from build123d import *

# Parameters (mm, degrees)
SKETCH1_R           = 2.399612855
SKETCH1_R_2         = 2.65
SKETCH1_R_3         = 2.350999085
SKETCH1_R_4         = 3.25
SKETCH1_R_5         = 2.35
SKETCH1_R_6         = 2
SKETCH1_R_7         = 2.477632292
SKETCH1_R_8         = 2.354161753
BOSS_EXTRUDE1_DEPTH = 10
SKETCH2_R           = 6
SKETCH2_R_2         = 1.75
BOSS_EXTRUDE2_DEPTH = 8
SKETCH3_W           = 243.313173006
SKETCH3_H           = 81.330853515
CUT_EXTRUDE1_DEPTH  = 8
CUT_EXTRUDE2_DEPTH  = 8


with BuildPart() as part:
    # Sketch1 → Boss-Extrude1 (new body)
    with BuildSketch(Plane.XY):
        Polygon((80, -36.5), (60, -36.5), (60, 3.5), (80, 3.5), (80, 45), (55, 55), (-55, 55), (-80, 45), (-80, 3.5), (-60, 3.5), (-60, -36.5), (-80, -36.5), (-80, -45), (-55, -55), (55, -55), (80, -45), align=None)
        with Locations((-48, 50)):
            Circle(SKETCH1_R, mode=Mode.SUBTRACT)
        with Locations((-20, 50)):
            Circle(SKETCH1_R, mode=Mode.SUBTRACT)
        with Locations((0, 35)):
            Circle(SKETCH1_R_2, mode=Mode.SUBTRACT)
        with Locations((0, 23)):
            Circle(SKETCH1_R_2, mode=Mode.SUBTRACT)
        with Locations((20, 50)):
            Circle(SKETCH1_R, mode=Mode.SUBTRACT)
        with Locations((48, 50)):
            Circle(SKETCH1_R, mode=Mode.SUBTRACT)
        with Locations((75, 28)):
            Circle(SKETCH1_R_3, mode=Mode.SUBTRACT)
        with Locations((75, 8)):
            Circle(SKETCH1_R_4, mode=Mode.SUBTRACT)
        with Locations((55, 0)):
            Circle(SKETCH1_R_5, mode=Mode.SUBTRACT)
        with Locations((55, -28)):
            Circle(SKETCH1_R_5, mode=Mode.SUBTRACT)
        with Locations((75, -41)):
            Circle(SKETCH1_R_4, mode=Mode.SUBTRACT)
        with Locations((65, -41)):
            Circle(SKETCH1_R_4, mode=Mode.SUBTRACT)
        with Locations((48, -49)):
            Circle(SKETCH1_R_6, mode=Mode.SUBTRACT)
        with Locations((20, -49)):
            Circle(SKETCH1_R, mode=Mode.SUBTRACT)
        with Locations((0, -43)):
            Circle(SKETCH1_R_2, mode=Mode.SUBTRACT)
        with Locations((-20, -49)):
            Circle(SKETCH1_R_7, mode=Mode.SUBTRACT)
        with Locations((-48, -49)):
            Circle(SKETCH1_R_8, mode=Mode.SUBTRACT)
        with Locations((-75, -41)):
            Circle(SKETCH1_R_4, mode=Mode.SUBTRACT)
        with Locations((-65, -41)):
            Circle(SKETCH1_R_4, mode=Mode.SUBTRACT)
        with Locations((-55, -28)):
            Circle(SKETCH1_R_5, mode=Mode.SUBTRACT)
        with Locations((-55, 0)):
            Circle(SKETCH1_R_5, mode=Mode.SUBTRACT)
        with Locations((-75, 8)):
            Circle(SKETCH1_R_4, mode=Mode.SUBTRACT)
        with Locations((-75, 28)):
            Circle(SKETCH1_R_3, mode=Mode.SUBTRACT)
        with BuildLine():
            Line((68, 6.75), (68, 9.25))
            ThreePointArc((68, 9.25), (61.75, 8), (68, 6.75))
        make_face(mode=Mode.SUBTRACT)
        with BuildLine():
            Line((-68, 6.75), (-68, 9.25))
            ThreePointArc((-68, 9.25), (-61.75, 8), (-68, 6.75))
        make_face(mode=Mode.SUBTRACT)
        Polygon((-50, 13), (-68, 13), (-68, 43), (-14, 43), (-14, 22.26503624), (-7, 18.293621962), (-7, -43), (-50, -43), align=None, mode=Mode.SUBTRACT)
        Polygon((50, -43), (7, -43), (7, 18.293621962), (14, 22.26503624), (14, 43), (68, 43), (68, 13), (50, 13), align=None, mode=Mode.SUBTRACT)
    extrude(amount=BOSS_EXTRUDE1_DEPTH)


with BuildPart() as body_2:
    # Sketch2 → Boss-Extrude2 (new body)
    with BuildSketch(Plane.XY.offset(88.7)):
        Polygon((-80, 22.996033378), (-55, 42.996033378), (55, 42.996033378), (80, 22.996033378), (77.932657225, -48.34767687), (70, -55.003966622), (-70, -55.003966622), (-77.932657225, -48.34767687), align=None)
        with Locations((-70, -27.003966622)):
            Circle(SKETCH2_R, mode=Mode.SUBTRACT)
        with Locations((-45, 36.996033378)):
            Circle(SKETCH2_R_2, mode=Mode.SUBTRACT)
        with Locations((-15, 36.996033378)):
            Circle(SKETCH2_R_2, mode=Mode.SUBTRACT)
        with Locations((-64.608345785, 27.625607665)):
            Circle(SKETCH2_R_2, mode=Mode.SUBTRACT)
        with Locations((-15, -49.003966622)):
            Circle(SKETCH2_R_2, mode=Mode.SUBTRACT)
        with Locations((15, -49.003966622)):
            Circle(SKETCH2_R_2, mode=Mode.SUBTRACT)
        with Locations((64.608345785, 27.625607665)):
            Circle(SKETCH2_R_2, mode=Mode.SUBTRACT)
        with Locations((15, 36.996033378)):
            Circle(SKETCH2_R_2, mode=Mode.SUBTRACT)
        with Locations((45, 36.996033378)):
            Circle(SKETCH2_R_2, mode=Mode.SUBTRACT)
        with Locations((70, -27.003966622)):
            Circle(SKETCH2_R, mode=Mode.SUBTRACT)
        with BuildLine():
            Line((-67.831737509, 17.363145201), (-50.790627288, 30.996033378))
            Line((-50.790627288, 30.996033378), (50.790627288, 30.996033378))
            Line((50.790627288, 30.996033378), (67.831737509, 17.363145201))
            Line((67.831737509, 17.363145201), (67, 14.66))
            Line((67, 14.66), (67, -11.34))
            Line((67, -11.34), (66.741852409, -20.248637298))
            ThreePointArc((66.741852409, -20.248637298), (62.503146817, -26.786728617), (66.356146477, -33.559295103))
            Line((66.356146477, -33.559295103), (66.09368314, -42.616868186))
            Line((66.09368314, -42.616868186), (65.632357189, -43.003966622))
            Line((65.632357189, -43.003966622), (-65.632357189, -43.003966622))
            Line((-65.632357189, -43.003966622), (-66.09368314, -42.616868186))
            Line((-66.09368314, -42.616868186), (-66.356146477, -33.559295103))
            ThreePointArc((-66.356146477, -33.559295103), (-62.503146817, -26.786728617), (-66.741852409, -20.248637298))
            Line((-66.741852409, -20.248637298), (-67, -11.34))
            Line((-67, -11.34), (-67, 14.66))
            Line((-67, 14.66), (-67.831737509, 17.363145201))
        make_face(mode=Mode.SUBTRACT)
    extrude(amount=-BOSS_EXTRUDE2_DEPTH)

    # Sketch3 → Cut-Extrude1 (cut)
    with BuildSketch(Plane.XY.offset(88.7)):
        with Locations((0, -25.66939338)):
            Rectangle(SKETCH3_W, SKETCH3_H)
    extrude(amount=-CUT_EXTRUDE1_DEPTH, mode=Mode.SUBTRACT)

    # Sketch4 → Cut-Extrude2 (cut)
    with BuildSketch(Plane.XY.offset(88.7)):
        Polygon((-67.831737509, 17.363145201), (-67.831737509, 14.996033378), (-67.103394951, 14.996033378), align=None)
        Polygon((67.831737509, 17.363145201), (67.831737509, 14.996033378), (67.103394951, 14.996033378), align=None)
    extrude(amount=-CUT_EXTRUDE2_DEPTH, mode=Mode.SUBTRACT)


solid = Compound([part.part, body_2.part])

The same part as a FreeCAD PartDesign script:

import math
import FreeCAD as App
import Part
import Sketcher
from FreeCAD import Vector
Q = App.Units.Quantity

doc = App.newDocument("Part")
body = doc.addObject("PartDesign::Body", "Body")

# Sketch on XY plane
sketch1 = body.newObject("Sketcher::SketchObject", "Sketch")
sketch1.AttachmentSupport = (doc.getObject("XY_Plane"), [""])
sketch1.MapMode = "FlatFace"
sketch1.addGeometry([
    Part.LineSegment(Vector(80, -36.5, 0), Vector(60, -36.5, 0)),  # 0
    Part.LineSegment(Vector(60, -36.5, 0), Vector(60, 3.5, 0)),  # 1
    Part.LineSegment(Vector(60, 3.5, 0), Vector(80, 3.5, 0)),  # 2
    Part.LineSegment(Vector(80, 3.5, 0), Vector(80, 45, 0)),  # 3
    Part.LineSegment(Vector(80, 45, 0), Vector(55, 55, 0)),  # 4
    Part.LineSegment(Vector(55, 55, 0), Vector(-55, 55, 0)),  # 5
    Part.LineSegment(Vector(-55, 55, 0), Vector(-80, 45, 0)),  # 6
    Part.LineSegment(Vector(-80, 45, 0), Vector(-80, 3.5, 0)),  # 7
    Part.LineSegment(Vector(-80, 3.5, 0), Vector(-60, 3.5, 0)),  # 8
    Part.LineSegment(Vector(-60, 3.5, 0), Vector(-60, -36.5, 0)),  # 9
    Part.LineSegment(Vector(-60, -36.5, 0), Vector(-80, -36.5, 0)),  # 10
    Part.LineSegment(Vector(-80, -36.5, 0), Vector(-80, -45, 0)),  # 11
    Part.LineSegment(Vector(-80, -45, 0), Vector(-55, -55, 0)),  # 12
    Part.LineSegment(Vector(-55, -55, 0), Vector(55, -55, 0)),  # 13
    Part.LineSegment(Vector(55, -55, 0), Vector(80, -45, 0)),  # 14
    Part.LineSegment(Vector(80, -45, 0), Vector(80, -36.5, 0)),  # 15
    Part.Circle(Vector(-75, -41, 0), Vector(0, 0, 1), 3.25),  # 16
    Part.Circle(Vector(-65, -41, 0), Vector(0, 0, 1), 3.25),  # 17
    Part.Circle(Vector(-48, -49, 0), Vector(0, 0, 1), 2.354162),  # 18
    Part.Circle(Vector(-55, -28, 0), Vector(0, 0, 1), 2.35),  # 19
    Part.Circle(Vector(-20, -49, 0), Vector(0, 0, 1), 2.477632),  # 20
    Part.Circle(Vector(-55, 0, 0), Vector(0, 0, 1), 2.35),  # 21
    Part.LineSegment(Vector(-50, -43, 0), Vector(-50, 13, 0)),  # 22
    Part.LineSegment(Vector(-50, 13, 0), Vector(-68, 13, 0)),  # 23
    Part.LineSegment(Vector(-68, 13, 0), Vector(-68, 43, 0)),  # 24
    Part.LineSegment(Vector(-68, 43, 0), Vector(-14, 43, 0)),  # 25
    Part.LineSegment(Vector(-14, 43, 0), Vector(-14, 22.265036, 0)),  # 26
    Part.LineSegment(Vector(-14, 22.265036, 0), Vector(-7, 18.293622, 0)),  # 27
    Part.LineSegment(Vector(-7, 18.293622, 0), Vector(-7, -43, 0)),  # 28
    Part.LineSegment(Vector(-7, -43, 0), Vector(-50, -43, 0)),  # 29
    Part.Circle(Vector(0, -43, 0), Vector(0, 0, 1), 2.65),  # 30
    Part.Circle(Vector(20, -49, 0), Vector(0, 0, 1), 2.399613),  # 31
    Part.Circle(Vector(48, -49, 0), Vector(0, 0, 1), 2),  # 32
    Part.Circle(Vector(65, -41, 0), Vector(0, 0, 1), 3.25),  # 33
    Part.Circle(Vector(75, -41, 0), Vector(0, 0, 1), 3.25),  # 34
    Part.Circle(Vector(55, -28, 0), Vector(0, 0, 1), 2.35),  # 35
    Part.LineSegment(Vector(50, 13, 0), Vector(50, -43, 0)),  # 36
    Part.LineSegment(Vector(50, -43, 0), Vector(7, -43, 0)),  # 37
    Part.LineSegment(Vector(7, -43, 0), Vector(7, 18.293622, 0)),  # 38
    Part.LineSegment(Vector(7, 18.293622, 0), Vector(14, 22.265036, 0)),  # 39
    Part.LineSegment(Vector(14, 22.265036, 0), Vector(14, 43, 0)),  # 40
    Part.LineSegment(Vector(14, 43, 0), Vector(68, 43, 0)),  # 41
    Part.LineSegment(Vector(68, 43, 0), Vector(68, 13, 0)),  # 42
    Part.LineSegment(Vector(68, 13, 0), Vector(50, 13, 0)),  # 43
    Part.Circle(Vector(55, 0, 0), Vector(0, 0, 1), 2.35),  # 44
    Part.Circle(Vector(-75, 8, 0), Vector(0, 0, 1), 3.25),  # 45
    Part.ArcOfCircle(Part.Circle(Vector(-65, 8, 0), Vector(0, 0, 1), 3.25), math.radians(-157.380135), math.radians(157.380135)),  # 46
    Part.LineSegment(Vector(-68, 6.75, 0), Vector(-68, 9.25, 0)),  # 47
    Part.Circle(Vector(-75, 28, 0), Vector(0, 0, 1), 2.350999),  # 48
    Part.Circle(Vector(-48, 50, 0), Vector(0, 0, 1), 2.399613),  # 49
    Part.Circle(Vector(-20, 50, 0), Vector(0, 0, 1), 2.399613),  # 50
    Part.Circle(Vector(0, 23, 0), Vector(0, 0, 1), 2.65),  # 51
    Part.LineSegment(Vector(68, 9.25, 0), Vector(68, 6.75, 0)),  # 52
    Part.ArcOfCircle(Part.Circle(Vector(65, 8, 0), Vector(0, 0, 1), 3.25), math.radians(22.619865), math.radians(337.380135)),  # 53
    Part.Circle(Vector(75, 8, 0), Vector(0, 0, 1), 3.25),  # 54
    Part.Circle(Vector(0, 35, 0), Vector(0, 0, 1), 2.65),  # 55
    Part.Circle(Vector(20, 50, 0), Vector(0, 0, 1), 2.399613),  # 56
    Part.Circle(Vector(75, 28, 0), Vector(0, 0, 1), 2.350999),  # 57
    Part.Circle(Vector(48, 50, 0), Vector(0, 0, 1), 2.399613),  # 58
], False)
sketch1.addConstraint([
    Sketcher.Constraint("Coincident", 0, 2, 1, 1),
    Sketcher.Constraint("Coincident", 1, 2, 2, 1),
    Sketcher.Constraint("Coincident", 2, 2, 3, 1),
    Sketcher.Constraint("Coincident", 3, 2, 4, 1),
    Sketcher.Constraint("Coincident", 4, 2, 5, 1),
    Sketcher.Constraint("Coincident", 5, 2, 6, 1),
    Sketcher.Constraint("Coincident", 6, 2, 7, 1),
    Sketcher.Constraint("Coincident", 7, 2, 8, 1),
    Sketcher.Constraint("Coincident", 8, 2, 9, 1),
    Sketcher.Constraint("Coincident", 9, 2, 10, 1),
    Sketcher.Constraint("Coincident", 10, 2, 11, 1),
    Sketcher.Constraint("Coincident", 11, 2, 12, 1),
    Sketcher.Constraint("Coincident", 12, 2, 13, 1),
    Sketcher.Constraint("Coincident", 13, 2, 14, 1),
    Sketcher.Constraint("Coincident", 14, 2, 15, 1),
    Sketcher.Constraint("Coincident", 15, 2, 0, 1),
    Sketcher.Constraint("Coincident", 22, 2, 23, 1),
    Sketcher.Constraint("Coincident", 23, 2, 24, 1),
    Sketcher.Constraint("Coincident", 24, 2, 25, 1),
    Sketcher.Constraint("Coincident", 25, 2, 26, 1),
    Sketcher.Constraint("Coincident", 26, 2, 27, 1),
    Sketcher.Constraint("Coincident", 27, 2, 28, 1),
    Sketcher.Constraint("Coincident", 28, 2, 29, 1),
    Sketcher.Constraint("Coincident", 29, 2, 22, 1),
    Sketcher.Constraint("Coincident", 36, 2, 37, 1),
    Sketcher.Constraint("Coincident", 37, 2, 38, 1),
    Sketcher.Constraint("Coincident", 38, 2, 39, 1),
    Sketcher.Constraint("Coincident", 39, 2, 40, 1),
    Sketcher.Constraint("Coincident", 40, 2, 41, 1),
    Sketcher.Constraint("Coincident", 41, 2, 42, 1),
    Sketcher.Constraint("Coincident", 42, 2, 43, 1),
    Sketcher.Constraint("Coincident", 43, 2, 36, 1),
    Sketcher.Constraint("Coincident", 46, 1, 47, 1),
    Sketcher.Constraint("Coincident", 47, 2, 46, 2),
    Sketcher.Constraint("Coincident", 52, 1, 53, 1),
    Sketcher.Constraint("Coincident", 53, 2, 52, 2),
    Sketcher.Constraint("Horizontal", 0),
    Sketcher.Constraint("Vertical", 1),
    Sketcher.Constraint("Horizontal", 2),
    Sketcher.Constraint("Vertical", 3),
    Sketcher.Constraint("Horizontal", 5),
    Sketcher.Constraint("Vertical", 7),
    Sketcher.Constraint("Horizontal", 8),
    Sketcher.Constraint("Vertical", 9),
    Sketcher.Constraint("Horizontal", 10),
    Sketcher.Constraint("Vertical", 11),
    Sketcher.Constraint("Horizontal", 13),
    Sketcher.Constraint("Vertical", 15),
    Sketcher.Constraint("Vertical", 22),
    Sketcher.Constraint("Horizontal", 23),
    Sketcher.Constraint("Vertical", 24),
    Sketcher.Constraint("Horizontal", 25),
    Sketcher.Constraint("Vertical", 26),
    Sketcher.Constraint("Vertical", 28),
    Sketcher.Constraint("Horizontal", 29),
    Sketcher.Constraint("Vertical", 36),
    Sketcher.Constraint("Horizontal", 37),
    Sketcher.Constraint("Vertical", 38),
    Sketcher.Constraint("Vertical", 40),
    Sketcher.Constraint("Horizontal", 41),
    Sketcher.Constraint("Vertical", 42),
    Sketcher.Constraint("Horizontal", 43),
    Sketcher.Constraint("Vertical", 47),
    Sketcher.Constraint("Vertical", 52),
    Sketcher.Constraint("Equal", 16, 17),
    Sketcher.Constraint("Equal", 19, 21),
    Sketcher.Constraint("Equal", 17, 33),
    Sketcher.Constraint("Equal", 33, 34),
    Sketcher.Constraint("Equal", 21, 35),
    Sketcher.Constraint("Equal", 35, 44),
    Sketcher.Constraint("Equal", 34, 45),
    Sketcher.Constraint("Equal", 45, 46),
    Sketcher.Constraint("Equal", 31, 49),
    Sketcher.Constraint("Equal", 49, 50),
    Sketcher.Constraint("Equal", 30, 51),
    Sketcher.Constraint("Equal", 46, 53),
    Sketcher.Constraint("Equal", 53, 54),
    Sketcher.Constraint("Equal", 51, 55),
    Sketcher.Constraint("Equal", 50, 56),
    Sketcher.Constraint("Equal", 48, 57),
    Sketcher.Constraint("Equal", 56, 58),
    Sketcher.Constraint("Symmetric", 21, 3, 44, 3, -1, 1),
    Sketcher.Constraint("Symmetric", 3, 2, 11, 2, -1, 1),
    Sketcher.Constraint("Symmetric", 4, 2, 12, 2, -1, 1),
    Sketcher.Constraint("Symmetric", 6, 2, 14, 2, -1, 1),
    Sketcher.Constraint("Symmetric", 20, 3, 31, 3, -2),
    Sketcher.Constraint("Symmetric", 18, 3, 32, 3, -2),
    Sketcher.Constraint("Symmetric", 17, 3, 33, 3, -2),
    Sketcher.Constraint("Symmetric", 16, 3, 34, 3, -2),
    Sketcher.Constraint("Symmetric", 19, 3, 35, 3, -2),
    Sketcher.Constraint("Symmetric", 46, 3, 53, 3, -2),
    Sketcher.Constraint("Symmetric", 45, 3, 54, 3, -2),
    Sketcher.Constraint("Symmetric", 50, 3, 56, 3, -2),
    Sketcher.Constraint("Symmetric", 48, 3, 57, 3, -2),
    Sketcher.Constraint("Symmetric", 49, 3, 58, 3, -2),
    Sketcher.Constraint("Symmetric", 3, 2, 6, 2, -2),
    Sketcher.Constraint("Symmetric", 1, 2, 8, 2, -2),
    Sketcher.Constraint("Symmetric", 29, 2, 36, 2, -2),
    Sketcher.Constraint("Symmetric", 27, 2, 38, 2, -2),
    Sketcher.Constraint("Symmetric", 26, 2, 39, 2, -2),
    Sketcher.Constraint("Symmetric", 24, 2, 41, 2, -2),
    Sketcher.Constraint("PointOnObject", 21, 3, -1),
    Sketcher.Constraint("PointOnObject", 30, 3, -2),
    Sketcher.Constraint("PointOnObject", 51, 3, -2),
    Sketcher.Constraint("PointOnObject", 55, 3, -2),
    Sketcher.Constraint("Parallel", 6, 14),
    Sketcher.Constraint("Horizontal", 16, 3, 17, 3),
    Sketcher.Constraint("Horizontal", 18, 3, 20, 3),
    Sketcher.Constraint("Horizontal", 45, 3, 46, 3),
    Sketcher.Constraint("Horizontal", 49, 3, 50, 3),
    Sketcher.Constraint("Horizontal", 0, 2, 9, 2),
    Sketcher.Constraint("Horizontal", 30, 3, 28, 2),
    Sketcher.Constraint("Horizontal", 23, 2, 42, 2),
    Sketcher.Constraint("Horizontal", 47, 2, 52, 1),
    Sketcher.Constraint("Vertical", 19, 3, 21, 3),
    Sketcher.Constraint("Vertical", 16, 3, 45, 3),
    Sketcher.Constraint("Vertical", 17, 3, 46, 3),
    Sketcher.Constraint("Vertical", 45, 3, 48, 3),
    Sketcher.Constraint("Vertical", 18, 3, 49, 3),
    Sketcher.Constraint("Vertical", 20, 3, 50, 3),
    Sketcher.Constraint("Vertical", 44, 3, 4, 2),
    Sketcher.Constraint("Vertical", 21, 3, 5, 2),
    Sketcher.Constraint("Vertical", 24, 2, 46, 1),
    Sketcher.Constraint("Diameter", 32, Q("4 mm")),
    Sketcher.Constraint("Diameter", 16, Q("6.5 mm")),
    Sketcher.Constraint("Diameter", 19, Q("4.7 mm")),
    Sketcher.Constraint("Diameter", 30, Q("5.3 mm")),
    Sketcher.Constraint("DistanceX", 0, 2, 0, 1, Q("20 mm")),
    Sketcher.Constraint("DistanceX", 5, 2, 5, 1, Q("110 mm")),
    Sketcher.Constraint("DistanceX", 23, 2, 23, 1, Q("18 mm")),
    Sketcher.Constraint("DistanceX", 25, 1, 25, 2, Q("54 mm")),
    Sketcher.Constraint("DistanceX", 29, 2, 29, 1, Q("43 mm")),
    Sketcher.Constraint("DistanceY", 1, 1, 1, 2, Q("40 mm")),
    Sketcher.Constraint("DistanceY", 22, 1, 22, 2, Q("56 mm")),
    Sketcher.Constraint("DistanceY", 24, 1, 24, 2, Q("30 mm")),
    Sketcher.Constraint("Diameter", 48, Q("4.701998 mm")),
    Sketcher.Constraint("DistanceY", 3, 1, 3, 2, Q("41.5 mm")),
    Sketcher.Constraint("DistanceY", 11, 2, 11, 1, Q("8.5 mm")),
    Sketcher.Constraint("DistanceY", 47, 1, 47, 2, Q("2.5 mm")),
    Sketcher.Constraint("DistanceX", 16, 3, -1, 1, Q("75 mm")),
    Sketcher.Constraint("DistanceY", 16, 3, -1, 1, Q("41 mm")),
    Sketcher.Constraint("DistanceX", 17, 3, -1, 1, Q("65 mm")),
    Sketcher.Constraint("DistanceX", 18, 3, -1, 1, Q("48 mm")),
    Sketcher.Constraint("DistanceY", 18, 3, -1, 1, Q("49 mm")),
    Sketcher.Constraint("DistanceY", 19, 3, -1, 1, Q("28 mm")),
    Sketcher.Constraint("DistanceX", 20, 3, -1, 1, Q("20 mm")),
    Sketcher.Constraint("DistanceY", 30, 3, -1, 1, Q("43 mm")),
    Sketcher.Constraint("DistanceY", -1, 1, 45, 3, Q("8 mm")),
    Sketcher.Constraint("DistanceY", -1, 1, 48, 3, Q("28 mm")),
    Sketcher.Constraint("DistanceY", -1, 1, 49, 3, Q("50 mm")),
    Sketcher.Constraint("DistanceY", -1, 1, 51, 3, Q("23 mm")),
    Sketcher.Constraint("DistanceY", -1, 1, 55, 3, Q("35 mm")),
    Sketcher.Constraint("DistanceX", -1, 1, 0, 2, Q("60 mm")),
    Sketcher.Constraint("DistanceY", -1, 1, 4, 2, Q("55 mm")),
    Sketcher.Constraint("Diameter", 18, Q("4.708324 mm")),
    Sketcher.Constraint("Diameter", 20, Q("4.955265 mm")),
    Sketcher.Constraint("Diameter", 31, Q("4.799226 mm")),
    Sketcher.Constraint("DistanceY", 28, 2, 28, 1, Q("61.293622 mm")),
    Sketcher.Constraint("DistanceY", 26, 2, 26, 1, Q("20.734964 mm")),
])
pad1 = body.newObject("PartDesign::Pad", "Pad")
pad1.Profile = sketch1
pad1.Length = 10
body2 = doc.addObject("PartDesign::Body", "Body001")

# Sketch on XY plane
sketch2 = body2.newObject("Sketcher::SketchObject", "Sketch001")
sketch2.AttachmentSupport = (doc.getObject("XY_Plane001"), [""])
sketch2.MapMode = "FlatFace"
sketch2.AttachmentOffset = App.Placement(Vector(0, 0, 88.7), App.Rotation())
sketch2.addGeometry([
    Part.LineSegment(Vector(-55, 42.996033, 0), Vector(-80, 22.996033, 0)),  # 0
    Part.LineSegment(Vector(-80, 22.996033, 0), Vector(-77.932657, -48.347677, 0)),  # 1
    Part.LineSegment(Vector(-77.932657, -48.347677, 0), Vector(-70, -55.003967, 0)),  # 2
    Part.LineSegment(Vector(-70, -55.003967, 0), Vector(70, -55.003967, 0)),  # 3
    Part.LineSegment(Vector(70, -55.003967, 0), Vector(77.932657, -48.347677, 0)),  # 4
    Part.LineSegment(Vector(77.932657, -48.347677, 0), Vector(80, 22.996033, 0)),  # 5
    Part.LineSegment(Vector(80, 22.996033, 0), Vector(55, 42.996033, 0)),  # 6
    Part.LineSegment(Vector(55, 42.996033, 0), Vector(-55, 42.996033, 0)),  # 7
    Part.Circle(Vector(15, -49.003967, 0), Vector(0, 0, 1), 1.75),  # 8
    Part.Circle(Vector(70, -27.003967, 0), Vector(0, 0, 1), 6),  # 9
    Part.Circle(Vector(-15, -49.003967, 0), Vector(0, 0, 1), 1.75),  # 10
    Part.Circle(Vector(-70, -27.003967, 0), Vector(0, 0, 1), 6),  # 11
    Part.Circle(Vector(64.608346, 27.625608, 0), Vector(0, 0, 1), 1.75),  # 12
    Part.Circle(Vector(45, 36.996033, 0), Vector(0, 0, 1), 1.75),  # 13
    Part.Circle(Vector(15, 36.996033, 0), Vector(0, 0, 1), 1.75),  # 14
    Part.LineSegment(Vector(-67.831738, 17.363145, 0), Vector(-50.790627, 30.996033, 0)),  # 15
    Part.LineSegment(Vector(-50.790627, 30.996033, 0), Vector(50.790627, 30.996033, 0)),  # 16
    Part.LineSegment(Vector(50.790627, 30.996033, 0), Vector(67.831738, 17.363145, 0)),  # 17
    Part.LineSegment(Vector(67.831738, 17.363145, 0), Vector(67, 14.66, 0)),  # 18
    Part.LineSegment(Vector(67, 14.66, 0), Vector(67, -11.34, 0)),  # 19
    Part.LineSegment(Vector(67, -11.34, 0), Vector(66.741852, -20.248637, 0)),  # 20
    Part.ArcOfCircle(Part.Circle(Vector(70, -27.003967, 0), Vector(0, 0, 1), 7.5), math.radians(115.748373), math.radians(240.932011)),  # 21
    Part.LineSegment(Vector(66.356146, -33.559295, 0), Vector(66.093683, -42.616868, 0)),  # 22
    Part.LineSegment(Vector(66.093683, -42.616868, 0), Vector(65.632357, -43.003967, 0)),  # 23
    Part.LineSegment(Vector(65.632357, -43.003967, 0), Vector(-65.632357, -43.003967, 0)),  # 24
    Part.LineSegment(Vector(-65.632357, -43.003967, 0), Vector(-66.093683, -42.616868, 0)),  # 25
    Part.LineSegment(Vector(-66.093683, -42.616868, 0), Vector(-66.356146, -33.559295, 0)),  # 26
    Part.ArcOfCircle(Part.Circle(Vector(-70, -27.003967, 0), Vector(0, 0, 1), 7.5), math.radians(-60.932011), math.radians(64.251627)),  # 27
    Part.LineSegment(Vector(-66.741852, -20.248637, 0), Vector(-67, -11.34, 0)),  # 28
    Part.LineSegment(Vector(-67, -11.34, 0), Vector(-67, 14.66, 0)),  # 29
    Part.LineSegment(Vector(-67, 14.66, 0), Vector(-67.831738, 17.363145, 0)),  # 30
    Part.Circle(Vector(-15, 36.996033, 0), Vector(0, 0, 1), 1.75),  # 31
    Part.Circle(Vector(-45, 36.996033, 0), Vector(0, 0, 1), 1.75),  # 32
    Part.Circle(Vector(-64.608346, 27.625608, 0), Vector(0, 0, 1), 1.75),  # 33
], False)
sketch2.addConstraint([
    Sketcher.Constraint("Coincident", 0, 2, 1, 1),
    Sketcher.Constraint("Coincident", 1, 2, 2, 1),
    Sketcher.Constraint("Coincident", 2, 2, 3, 1),
    Sketcher.Constraint("Coincident", 3, 2, 4, 1),
    Sketcher.Constraint("Coincident", 4, 2, 5, 1),
    Sketcher.Constraint("Coincident", 5, 2, 6, 1),
    Sketcher.Constraint("Coincident", 6, 2, 7, 1),
    Sketcher.Constraint("Coincident", 7, 2, 0, 1),
    Sketcher.Constraint("Coincident", 15, 2, 16, 1),
    Sketcher.Constraint("Coincident", 16, 2, 17, 1),
    Sketcher.Constraint("Coincident", 17, 2, 18, 1),
    Sketcher.Constraint("Coincident", 18, 2, 19, 1),
    Sketcher.Constraint("Coincident", 19, 2, 20, 1),
    Sketcher.Constraint("Coincident", 20, 2, 21, 1),
    Sketcher.Constraint("Coincident", 21, 2, 22, 1),
    Sketcher.Constraint("Coincident", 22, 2, 23, 1),
    Sketcher.Constraint("Coincident", 23, 2, 24, 1),
    Sketcher.Constraint("Coincident", 24, 2, 25, 1),
    Sketcher.Constraint("Coincident", 25, 2, 26, 1),
    Sketcher.Constraint("Coincident", 26, 2, 27, 1),
    Sketcher.Constraint("Coincident", 27, 2, 28, 1),
    Sketcher.Constraint("Coincident", 28, 2, 29, 1),
    Sketcher.Constraint("Coincident", 29, 2, 30, 1),
    Sketcher.Constraint("Coincident", 30, 2, 15, 1),
    Sketcher.Constraint("Horizontal", 3),
    Sketcher.Constraint("Horizontal", 7),
    Sketcher.Constraint("Horizontal", 16),
    Sketcher.Constraint("Vertical", 19),
    Sketcher.Constraint("Horizontal", 24),
    Sketcher.Constraint("Vertical", 29),
    Sketcher.Constraint("Coincident", 21, 3, 9, 3),
    Sketcher.Constraint("Coincident", 27, 3, 11, 3),
    Sketcher.Constraint("Equal", 8, 10),
    Sketcher.Constraint("Equal", 9, 11),
    Sketcher.Constraint("Equal", 10, 12),
    Sketcher.Constraint("Equal", 12, 13),
    Sketcher.Constraint("Equal", 13, 14),
    Sketcher.Constraint("Equal", 21, 27),
    Sketcher.Constraint("Equal", 14, 31),
    Sketcher.Constraint("Equal", 31, 32),
    Sketcher.Constraint("Equal", 32, 33),
    Sketcher.Constraint("Symmetric", 8, 3, 10, 3, -2),
    Sketcher.Constraint("Symmetric", 9, 3, 11, 3, -2),
    Sketcher.Constraint("Symmetric", 14, 3, 31, 3, -2),
    Sketcher.Constraint("Symmetric", 13, 3, 32, 3, -2),
    Sketcher.Constraint("Symmetric", 12, 3, 33, 3, -2),
    Sketcher.Constraint("Symmetric", 1, 2, 4, 2, -2),
    Sketcher.Constraint("Symmetric", 0, 2, 5, 2, -2),
    Sketcher.Constraint("Symmetric", 22, 2, 25, 2, -2),
    Sketcher.Constraint("Symmetric", 19, 2, 28, 2, -2),
    Sketcher.Constraint("Symmetric", 17, 2, 30, 2, -2),
    Sketcher.Constraint("Parallel", 0, 15),
    Sketcher.Constraint("Parallel", 6, 17),
    Sketcher.Constraint("Parallel", 5, 20),
    Sketcher.Constraint("Parallel", 20, 22),
    Sketcher.Constraint("Parallel", 4, 23),
    Sketcher.Constraint("Parallel", 2, 25),
    Sketcher.Constraint("Parallel", 1, 26),
    Sketcher.Constraint("Parallel", 26, 28),
    Sketcher.Constraint("Horizontal", 13, 3, 14, 3),
    Sketcher.Constraint("Horizontal", 18, 2, 29, 2),
    Sketcher.Constraint("Vertical", 8, 3, 14, 3),
    Sketcher.Constraint("Vertical", 27, 3, 2, 2),
    Sketcher.Constraint("Vertical", 21, 3, 3, 2),
    Sketcher.Constraint("Equal", 0, 6),
    Sketcher.Constraint("Diameter", 9, Q("12 mm")),
    Sketcher.Constraint("Diameter", 8, Q("3.5 mm")),
    Sketcher.Constraint("Radius", 21, Q("7.5 mm")),
    Sketcher.Constraint("DistanceX", 3, 1, 3, 2, Q("140 mm")),
    Sketcher.Constraint("DistanceX", 7, 2, 7, 1, Q("110 mm")),
    Sketcher.Constraint("DistanceY", 19, 2, 19, 1, Q("26 mm")),
    Sketcher.Constraint("Angle", 2, Q("-40 deg")),
    Sketcher.Constraint("DistanceX", -1, 1, 8, 3, Q("15 mm")),
    Sketcher.Constraint("DistanceX", -1, 1, 13, 3, Q("45 mm")),
    Sketcher.Constraint("DistanceX", 0, 2, -1, 1, Q("80 mm")),
    Sketcher.Constraint("DistanceX", -1, 1, 18, 2, Q("67 mm")),
    Sketcher.Constraint("DistanceY", 8, 3, 9, 3, Q("22 mm")),
    Sketcher.Constraint("DistanceY", 9, 3, 13, 3, Q("64 mm")),
    Sketcher.Constraint("DistanceY", 0, 2, 32, 3, Q("14 mm")),
    Sketcher.Constraint("DistanceY", 2, 2, 11, 3, Q("28 mm")),
    Sketcher.Constraint("DistanceY", 13, 3, 6, 2, Q("6 mm")),
    Sketcher.Constraint("DistanceY", 15, 2, 32, 3, Q("6 mm")),
    Sketcher.Constraint("DistanceY", 3, 2, 23, 2, Q("12 mm")),
    Sketcher.Constraint("DistanceY", -1, 1, 18, 2, Q("14.66 mm")),
    Sketcher.Constraint("DistanceY", 3, 2, 22, 2, Q("12.387098 mm")),
    Sketcher.Constraint("DistanceX", 23, 2, 4, 2, Q("12.3003 mm")),
    Sketcher.Constraint("Distance", 2, Q("10.355349 mm")),
    Sketcher.Constraint("Distance", 15, Q("21.823269 mm")),
    Sketcher.Constraint("Distance", 18, Q("2.828212 mm")),
    Sketcher.Constraint("DistanceX", 16, 1, 16, 2, Q("101.581255 mm")),
    Sketcher.Constraint("DistanceX", 1, 2, 33, 3, Q("13.324311 mm")),
    Sketcher.Constraint("DistanceY", -1, 1, 12, 3, Q("27.625608 mm")),
])
pad2 = body2.newObject("PartDesign::Pad", "Pad001")
pad2.Profile = sketch2
pad2.Length = 8
pad2.Reversed = True

# Sketch on XY plane
sketch3 = body2.newObject("Sketcher::SketchObject", "Sketch002")
sketch3.AttachmentSupport = (doc.getObject("XY_Plane001"), [""])
sketch3.MapMode = "FlatFace"
sketch3.AttachmentOffset = App.Placement(Vector(0, 0, 88.7), App.Rotation())
sketch3.addGeometry([
    Part.LineSegment(Vector(-121.656587, 14.996033, 0), Vector(-121.656587, -66.33482, 0)),
    Part.LineSegment(Vector(-121.656587, -66.33482, 0), Vector(121.656587, -66.33482, 0)),
    Part.LineSegment(Vector(121.656587, -66.33482, 0), Vector(121.656587, 14.996033, 0)),
    Part.LineSegment(Vector(121.656587, 14.996033, 0), Vector(-121.656587, 14.996033, 0)),
], False)
sketch3.addConstraint([
    Sketcher.Constraint("Coincident", 0, 2, 1, 1),
    Sketcher.Constraint("Coincident", 1, 2, 2, 1),
    Sketcher.Constraint("Coincident", 2, 2, 3, 1),
    Sketcher.Constraint("Coincident", 3, 2, 0, 1),
    Sketcher.Constraint("Vertical", 0),
    Sketcher.Constraint("Horizontal", 1),
    Sketcher.Constraint("Vertical", 2),
    Sketcher.Constraint("Horizontal", 3),
    Sketcher.Constraint("DistanceX", 1, 1, 1, 2, Q("243.313173 mm")),
    Sketcher.Constraint("DistanceY", 0, 2, 0, 1, Q("81.330854 mm")),
    Sketcher.Constraint("DistanceY", 0, 2, -1, 1, Q("66.33482 mm")),
    Sketcher.Constraint("DistanceX", 0, 2, -1, 1, Q("121.656587 mm")),
])
pocket1 = body2.newObject("PartDesign::Pocket", "Pocket")
pocket1.Profile = sketch3
pocket1.Length = 8

# Sketch on XY plane
sketch4 = body2.newObject("Sketcher::SketchObject", "Sketch003")
sketch4.AttachmentSupport = (doc.getObject("XY_Plane001"), [""])
sketch4.MapMode = "FlatFace"
sketch4.AttachmentOffset = App.Placement(Vector(0, 0, 88.7), App.Rotation())
sketch4.addGeometry([
    Part.LineSegment(Vector(-67.831738, 17.363145, 0), Vector(-67.831738, 14.996033, 0)),  # 0
    Part.LineSegment(Vector(-67.831738, 14.996033, 0), Vector(-67.103395, 14.996033, 0)),  # 1
    Part.LineSegment(Vector(-67.103395, 14.996033, 0), Vector(-67.831738, 17.363145, 0)),  # 2
    Part.LineSegment(Vector(67.831738, 14.996033, 0), Vector(67.831738, 17.363145, 0)),  # 3
    Part.LineSegment(Vector(67.831738, 17.363145, 0), Vector(67.103395, 14.996033, 0)),  # 4
    Part.LineSegment(Vector(67.103395, 14.996033, 0), Vector(67.831738, 14.996033, 0)),  # 5
], False)
sketch4.addConstraint([
    Sketcher.Constraint("Coincident", 0, 2, 1, 1),
    Sketcher.Constraint("Coincident", 1, 2, 2, 1),
    Sketcher.Constraint("Coincident", 2, 2, 0, 1),
    Sketcher.Constraint("Coincident", 3, 2, 4, 1),
    Sketcher.Constraint("Coincident", 4, 2, 5, 1),
    Sketcher.Constraint("Coincident", 5, 2, 3, 1),
    Sketcher.Constraint("Vertical", 0),
    Sketcher.Constraint("Horizontal", 1),
    Sketcher.Constraint("Vertical", 3),
    Sketcher.Constraint("Horizontal", 5),
    Sketcher.Constraint("Symmetric", 2, 2, 3, 2, -2),
    Sketcher.Constraint("Symmetric", 1, 2, 4, 2, -2),
    Sketcher.Constraint("DistanceY", 0, 2, 0, 1, Q("2.367112 mm")),
    Sketcher.Constraint("Distance", 2, Q("2.476631 mm")),
    Sketcher.Constraint("DistanceX", 1, 2, 4, 2, Q("134.20679 mm")),
    Sketcher.Constraint("DistanceY", -1, 1, 0, 2, Q("14.996033 mm")),
])
pocket2 = body2.newObject("PartDesign::Pocket", "Pocket001")
pocket2.Profile = sketch4
pocket2.Length = 8

doc.recompute()
